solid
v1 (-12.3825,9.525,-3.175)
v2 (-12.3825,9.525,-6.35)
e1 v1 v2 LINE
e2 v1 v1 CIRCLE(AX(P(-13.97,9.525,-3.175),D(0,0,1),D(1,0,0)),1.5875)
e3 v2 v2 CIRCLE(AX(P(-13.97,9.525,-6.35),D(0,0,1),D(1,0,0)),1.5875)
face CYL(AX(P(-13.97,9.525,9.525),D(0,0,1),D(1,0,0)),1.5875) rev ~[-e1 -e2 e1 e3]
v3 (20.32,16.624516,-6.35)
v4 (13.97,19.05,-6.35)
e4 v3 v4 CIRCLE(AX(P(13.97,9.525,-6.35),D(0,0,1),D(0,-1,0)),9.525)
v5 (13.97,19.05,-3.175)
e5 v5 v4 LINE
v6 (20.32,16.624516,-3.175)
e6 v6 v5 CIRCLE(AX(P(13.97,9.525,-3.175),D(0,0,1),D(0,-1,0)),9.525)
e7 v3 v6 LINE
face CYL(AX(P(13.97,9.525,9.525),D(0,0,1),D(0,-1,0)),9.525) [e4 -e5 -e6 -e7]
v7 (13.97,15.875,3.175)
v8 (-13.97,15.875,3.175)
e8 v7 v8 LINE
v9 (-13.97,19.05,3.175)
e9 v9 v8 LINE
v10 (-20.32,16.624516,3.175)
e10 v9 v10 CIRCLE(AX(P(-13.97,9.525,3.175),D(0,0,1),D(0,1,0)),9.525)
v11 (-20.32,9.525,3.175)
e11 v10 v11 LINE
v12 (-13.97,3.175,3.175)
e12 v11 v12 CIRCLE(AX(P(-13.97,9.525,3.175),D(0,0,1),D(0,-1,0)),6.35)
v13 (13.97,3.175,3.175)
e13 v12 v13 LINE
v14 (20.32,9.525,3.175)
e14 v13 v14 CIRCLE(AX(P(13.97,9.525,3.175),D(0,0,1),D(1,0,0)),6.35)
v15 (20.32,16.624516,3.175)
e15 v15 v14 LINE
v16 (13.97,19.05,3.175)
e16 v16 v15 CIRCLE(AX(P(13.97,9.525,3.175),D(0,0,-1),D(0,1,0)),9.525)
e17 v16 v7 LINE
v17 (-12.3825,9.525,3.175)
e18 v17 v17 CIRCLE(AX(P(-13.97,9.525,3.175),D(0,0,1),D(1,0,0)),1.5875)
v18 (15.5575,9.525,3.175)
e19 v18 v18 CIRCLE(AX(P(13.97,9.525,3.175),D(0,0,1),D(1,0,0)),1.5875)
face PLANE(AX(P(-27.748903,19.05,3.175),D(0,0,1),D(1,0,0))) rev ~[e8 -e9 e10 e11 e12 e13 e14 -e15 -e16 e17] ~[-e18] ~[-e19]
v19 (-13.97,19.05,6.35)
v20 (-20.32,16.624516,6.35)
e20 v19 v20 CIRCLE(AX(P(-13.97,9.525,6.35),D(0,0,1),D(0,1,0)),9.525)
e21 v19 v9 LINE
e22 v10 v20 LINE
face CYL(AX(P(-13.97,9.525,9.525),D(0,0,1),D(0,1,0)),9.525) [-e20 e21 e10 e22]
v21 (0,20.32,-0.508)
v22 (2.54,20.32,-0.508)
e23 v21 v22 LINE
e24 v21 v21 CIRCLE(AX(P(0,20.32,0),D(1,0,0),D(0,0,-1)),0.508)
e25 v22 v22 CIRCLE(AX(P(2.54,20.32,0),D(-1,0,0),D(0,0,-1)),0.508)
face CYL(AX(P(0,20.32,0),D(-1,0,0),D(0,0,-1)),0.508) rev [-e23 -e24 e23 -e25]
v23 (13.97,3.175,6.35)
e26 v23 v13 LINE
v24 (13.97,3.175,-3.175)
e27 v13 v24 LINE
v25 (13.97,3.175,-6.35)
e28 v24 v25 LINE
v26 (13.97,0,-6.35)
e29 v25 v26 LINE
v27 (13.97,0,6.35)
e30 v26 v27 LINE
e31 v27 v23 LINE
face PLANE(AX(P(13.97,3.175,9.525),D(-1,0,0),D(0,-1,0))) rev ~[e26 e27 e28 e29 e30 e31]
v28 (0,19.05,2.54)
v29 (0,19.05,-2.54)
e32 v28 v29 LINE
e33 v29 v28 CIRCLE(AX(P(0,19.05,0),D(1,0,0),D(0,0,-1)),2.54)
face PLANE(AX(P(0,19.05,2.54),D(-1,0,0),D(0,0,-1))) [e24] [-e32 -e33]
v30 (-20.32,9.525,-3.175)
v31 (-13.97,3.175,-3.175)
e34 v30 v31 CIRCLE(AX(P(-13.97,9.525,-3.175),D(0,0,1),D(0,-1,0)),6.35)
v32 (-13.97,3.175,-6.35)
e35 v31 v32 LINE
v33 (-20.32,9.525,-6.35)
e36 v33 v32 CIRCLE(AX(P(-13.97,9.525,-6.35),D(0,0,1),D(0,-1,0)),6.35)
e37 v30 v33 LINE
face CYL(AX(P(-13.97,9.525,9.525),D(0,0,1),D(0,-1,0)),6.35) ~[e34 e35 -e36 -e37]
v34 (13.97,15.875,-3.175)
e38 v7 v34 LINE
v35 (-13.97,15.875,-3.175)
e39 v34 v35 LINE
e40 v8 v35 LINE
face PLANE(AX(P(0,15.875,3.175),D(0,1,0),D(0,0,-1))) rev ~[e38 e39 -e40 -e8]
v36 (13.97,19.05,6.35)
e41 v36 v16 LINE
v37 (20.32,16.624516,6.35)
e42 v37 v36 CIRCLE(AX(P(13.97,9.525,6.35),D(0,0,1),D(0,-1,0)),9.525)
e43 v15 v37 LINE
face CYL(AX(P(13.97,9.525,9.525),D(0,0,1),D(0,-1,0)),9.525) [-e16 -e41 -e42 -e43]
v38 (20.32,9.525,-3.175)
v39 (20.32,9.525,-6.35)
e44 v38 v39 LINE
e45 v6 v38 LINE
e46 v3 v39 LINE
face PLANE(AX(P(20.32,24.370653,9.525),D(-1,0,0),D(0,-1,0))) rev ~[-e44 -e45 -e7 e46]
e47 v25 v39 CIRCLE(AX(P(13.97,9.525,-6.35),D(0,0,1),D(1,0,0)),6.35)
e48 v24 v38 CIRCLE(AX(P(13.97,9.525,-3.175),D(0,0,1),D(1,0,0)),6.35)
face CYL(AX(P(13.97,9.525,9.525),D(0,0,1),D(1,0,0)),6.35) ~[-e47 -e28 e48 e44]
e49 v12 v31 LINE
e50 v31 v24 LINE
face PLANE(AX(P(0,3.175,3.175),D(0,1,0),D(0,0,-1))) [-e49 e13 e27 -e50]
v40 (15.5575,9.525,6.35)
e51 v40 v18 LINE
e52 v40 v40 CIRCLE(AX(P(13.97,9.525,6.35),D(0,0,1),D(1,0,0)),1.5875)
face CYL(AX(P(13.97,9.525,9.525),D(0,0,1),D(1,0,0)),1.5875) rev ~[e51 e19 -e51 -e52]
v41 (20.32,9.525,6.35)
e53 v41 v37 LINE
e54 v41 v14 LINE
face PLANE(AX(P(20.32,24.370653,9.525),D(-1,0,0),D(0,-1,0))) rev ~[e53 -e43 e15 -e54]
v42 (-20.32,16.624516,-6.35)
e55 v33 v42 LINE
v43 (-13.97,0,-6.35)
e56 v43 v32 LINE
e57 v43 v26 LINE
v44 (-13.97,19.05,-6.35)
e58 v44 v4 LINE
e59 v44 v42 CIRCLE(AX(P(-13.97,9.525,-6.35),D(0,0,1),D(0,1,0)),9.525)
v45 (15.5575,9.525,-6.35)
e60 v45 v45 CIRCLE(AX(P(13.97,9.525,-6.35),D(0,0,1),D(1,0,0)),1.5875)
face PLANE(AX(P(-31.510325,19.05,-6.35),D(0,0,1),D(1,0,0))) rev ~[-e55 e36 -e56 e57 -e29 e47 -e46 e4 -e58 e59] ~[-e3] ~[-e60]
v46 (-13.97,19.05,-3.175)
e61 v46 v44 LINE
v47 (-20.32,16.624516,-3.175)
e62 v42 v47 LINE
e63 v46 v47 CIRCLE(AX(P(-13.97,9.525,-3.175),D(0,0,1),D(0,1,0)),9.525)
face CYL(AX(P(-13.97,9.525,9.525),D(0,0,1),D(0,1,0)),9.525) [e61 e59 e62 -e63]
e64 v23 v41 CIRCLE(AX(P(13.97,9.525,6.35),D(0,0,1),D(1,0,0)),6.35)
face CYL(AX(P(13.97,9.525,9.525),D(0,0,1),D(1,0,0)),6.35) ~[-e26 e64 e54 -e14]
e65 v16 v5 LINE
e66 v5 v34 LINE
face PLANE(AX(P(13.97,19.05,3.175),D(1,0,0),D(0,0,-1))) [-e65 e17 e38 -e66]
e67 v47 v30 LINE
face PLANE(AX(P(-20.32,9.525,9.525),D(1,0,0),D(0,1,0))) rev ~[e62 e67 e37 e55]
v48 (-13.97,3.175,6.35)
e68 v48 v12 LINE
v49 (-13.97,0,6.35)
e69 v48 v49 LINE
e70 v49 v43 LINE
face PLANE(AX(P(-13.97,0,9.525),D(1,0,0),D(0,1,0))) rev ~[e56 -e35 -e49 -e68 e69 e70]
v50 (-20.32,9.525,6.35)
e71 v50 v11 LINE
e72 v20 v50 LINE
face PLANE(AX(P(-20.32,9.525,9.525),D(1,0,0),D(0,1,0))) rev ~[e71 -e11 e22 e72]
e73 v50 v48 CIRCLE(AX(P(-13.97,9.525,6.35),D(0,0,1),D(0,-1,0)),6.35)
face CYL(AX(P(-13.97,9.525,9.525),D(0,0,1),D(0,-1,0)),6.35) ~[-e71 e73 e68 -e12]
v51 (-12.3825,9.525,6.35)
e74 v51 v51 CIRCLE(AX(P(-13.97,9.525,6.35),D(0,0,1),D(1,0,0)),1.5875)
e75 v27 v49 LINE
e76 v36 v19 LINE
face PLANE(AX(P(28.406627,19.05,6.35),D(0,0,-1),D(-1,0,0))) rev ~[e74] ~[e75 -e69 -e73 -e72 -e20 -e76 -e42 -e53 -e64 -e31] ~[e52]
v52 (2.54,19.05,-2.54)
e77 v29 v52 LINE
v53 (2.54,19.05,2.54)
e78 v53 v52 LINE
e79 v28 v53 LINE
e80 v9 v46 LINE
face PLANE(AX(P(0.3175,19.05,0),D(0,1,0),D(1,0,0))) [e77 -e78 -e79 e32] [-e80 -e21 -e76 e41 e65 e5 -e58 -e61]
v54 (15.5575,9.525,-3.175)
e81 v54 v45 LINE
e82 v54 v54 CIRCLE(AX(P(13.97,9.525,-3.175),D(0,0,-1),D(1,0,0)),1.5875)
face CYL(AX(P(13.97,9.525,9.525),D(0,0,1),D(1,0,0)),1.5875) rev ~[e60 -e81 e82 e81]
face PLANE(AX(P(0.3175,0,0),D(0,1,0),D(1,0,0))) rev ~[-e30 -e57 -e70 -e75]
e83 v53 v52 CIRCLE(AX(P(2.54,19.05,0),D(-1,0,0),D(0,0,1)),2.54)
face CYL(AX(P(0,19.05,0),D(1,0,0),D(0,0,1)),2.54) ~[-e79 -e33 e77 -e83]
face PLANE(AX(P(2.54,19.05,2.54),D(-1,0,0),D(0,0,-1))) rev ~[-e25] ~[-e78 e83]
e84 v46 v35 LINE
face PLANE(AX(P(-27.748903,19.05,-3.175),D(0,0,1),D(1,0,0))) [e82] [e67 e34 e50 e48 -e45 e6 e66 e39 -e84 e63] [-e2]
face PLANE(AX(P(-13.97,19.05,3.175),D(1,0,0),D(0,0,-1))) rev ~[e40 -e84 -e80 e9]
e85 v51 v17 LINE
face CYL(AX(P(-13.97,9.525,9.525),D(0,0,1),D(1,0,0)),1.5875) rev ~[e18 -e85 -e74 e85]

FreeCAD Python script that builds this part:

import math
import FreeCAD as App
import Part
import Sketcher

V = App.Vector
Q = App.Units.Quantity

doc = App.newDocument("Part")
body = doc.addObject("PartDesign::Body", "Body")

# Sketch on XZ plane
sketch1 = body.newObject("Sketcher::SketchObject", "Sketch")
sketch1.AttachmentSupport = (doc.getObject("XZ_Plane"), [""])
sketch1.MapMode = "FlatFace"
sketch1.addGeometry([
    Part.LineSegment(V(-23, -10, 0), V(-23, 10, 0)),
    Part.LineSegment(V(-23, 10, 0), V(24, 10, 0)),
    Part.LineSegment(V(24, 10, 0), V(24, -10, 0)),
    Part.LineSegment(V(24, -10, 0), V(-23, -10, 0)),
], False)
sketch1.addConstraint([
    Sketcher.Constraint("Coincident", 0, 2, 1, 1),
    Sketcher.Constraint("Coincident", 1, 2, 2, 1),
    Sketcher.Constraint("Coincident", 2, 2, 3, 1),
    Sketcher.Constraint("Coincident", 3, 2, 0, 1),
    Sketcher.Constraint("Vertical", 0),
    Sketcher.Constraint("Horizontal", 1),
    Sketcher.Constraint("Vertical", 2),
    Sketcher.Constraint("Horizontal", 3),
    Sketcher.Constraint("DistanceY", 0, 1, 0, 2, Q("0.75 in")),
    Sketcher.Constraint("DistanceX", 1, 1, 1, 2, Q("1.875 in")),
    Sketcher.Constraint("DistanceX", -1, 1, 1, 2, Q("0.95 in")),
    Sketcher.Constraint("DistanceY", -1, 1, 0, 2, Q("0.375 in")),
])
pad1 = body.newObject("PartDesign::Pad", "Pad")
pad1.Profile = sketch1
pad1.Length = Q("0.75 in")
pad1.Reversed = True

# Sketch on XY plane
sketch2 = body.newObject("Sketcher::SketchObject", "Sketch001")
sketch2.AttachmentSupport = (doc.getObject("XY_Plane"), [""])
sketch2.MapMode = "FlatFace"
sketch2.AttachmentOffset = App.Placement(V(0, 0, 0.375 * 25.4), App.Rotation())
sketch2.addGeometry([
    Part.Circle(V(-14, 9.5, 0), V(0, 0, 1), 1.6),  # 0
    Part.Circle(V(14, 9.5, 0), V(0, 0, 1), 1.6),  # 1
    Part.ArcOfCircle(Part.Circle(V(-14, 9.5, 0), V(0, 0, 1), 9.5), math.radians(90), math.radians(270)),  # 2
    Part.ArcOfCircle(Part.Circle(V(-21.8, 9.5, 0), V(0, 0, 1), 12.4), math.radians(50), math.radians(310)),  # 3
    Part.ArcOfCircle(Part.Circle(V(21.8, 9.5, 0), V(0, 0, 1), 12.4), math.radians(-130), math.radians(130)),  # 4
    Part.ArcOfCircle(Part.Circle(V(14, 9.5, 0), V(0, 0, 1), 9.5), math.radians(-90), math.radians(90)),  # 5
], False)
sketch2.addConstraint([
    Sketcher.Constraint("Coincident", 2, 1, 3, 1),
    Sketcher.Constraint("Coincident", 3, 2, 2, 2),
    Sketcher.Constraint("Coincident", 4, 1, 5, 1),
    Sketcher.Constraint("Coincident", 5, 2, 4, 2),
    Sketcher.Constraint("Coincident", 2, 3, 0, 3),
    Sketcher.Constraint("Coincident", 5, 3, 1, 3),
    Sketcher.Constraint("Equal", 0, 1),
    Sketcher.Constraint("Equal", 3, 4),
    Sketcher.Constraint("Equal", 2, 5),
    Sketcher.Constraint("Symmetric", 3, 2, 4, 1, -1, 1),
    Sketcher.Constraint("Symmetric", 0, 3, 1, 3, -2),
    Sketcher.Constraint("Horizontal", 2, 3, 3, 3),
    Sketcher.Constraint("Horizontal", 3, 3, 4, 3),
    Sketcher.Constraint("Vertical", 0, 3, 2, 1),
    Sketcher.Constraint("Diameter", 0, Q("0.125 in")),
    Sketcher.Constraint("Radius", 2, Q("0.375 in")),
    Sketcher.Constraint("DistanceX", 0, 3, 1, 3, Q("1.1 in")),
    Sketcher.Constraint("Radius", 3, Q("12.351426 mm")),
])
pocket1 = body.newObject("PartDesign::Pocket", "Pocket")
pocket1.Profile = sketch2
pocket1.Length = Q("0.75 in")

# Sketch on XZ plane
sketch3 = body.newObject("Sketcher::SketchObject", "Sketch002")
sketch3.AttachmentSupport = (doc.getObject("XZ_Plane"), [""])
sketch3.MapMode = "FlatFace"
sketch3.AttachmentOffset = App.Placement(V(0, 0, -0.75 * 25.4), App.Rotation())
sketch3.addGeometry([
    Part.LineSegment(V(0, -2.5, 0), V(0, 2.5, 0)),
    Part.LineSegment(V(0, 2.5, 0), V(2.5, 2.5, 0)),
    Part.LineSegment(V(2.5, 2.5, 0), V(2.5, -2.5, 0)),
    Part.LineSegment(V(2.5, -2.5, 0), V(0, -2.5, 0)),
], False)
sketch3.addConstraint([
    Sketcher.Constraint("Coincident", 0, 2, 1, 1),
    Sketcher.Constraint("Coincident", 1, 2, 2, 1),
    Sketcher.Constraint("Coincident", 2, 2, 3, 1),
    Sketcher.Constraint("Coincident", 3, 2, 0, 1),
    Sketcher.Constraint("Vertical", 0),
    Sketcher.Constraint("Horizontal", 1),
    Sketcher.Constraint("Vertical", 2),
    Sketcher.Constraint("Horizontal", 3),
    Sketcher.Constraint("Symmetric", 0, 2, 3, 2, -1, 1),
    Sketcher.Constraint("DistanceX", 1, 1, 1, 2, Q("0.1 in")),
    Sketcher.Constraint("DistanceY", 0, 1, 0, 2, Q("0.2 in")),
])
pad2 = body.newObject("PartDesign::Pad", "Pad001")
pad2.Profile = sketch3
pad2.Length = Q("0.1 in")
pad2.Reversed = True

# Sketch on YZ plane
sketch4 = body.newObject("Sketcher::SketchObject", "Sketch003")
sketch4.AttachmentSupport = (doc.getObject("YZ_Plane"), [""])
sketch4.MapMode = "FlatFace"
sketch4.addGeometry([
    Part.Circle(V(20.3, 0, 0), V(0, 0, 1), 0.5),  # 0
    Part.LineSegment(V(15.9, 3.2, 0), V(3.2, 3.2, 0)),  # 1
    Part.LineSegment(V(3.2, 3.2, 0), V(3.2, -3.2, 0)),  # 2
    Part.LineSegment(V(3.2, -3.2, 0), V(15.9, -3.2, 0)),  # 3
    Part.LineSegment(V(15.9, -3.2, 0), V(15.9, 3.2, 0)),  # 4
    Part.ArcOfCircle(Part.Circle(V(19.1, 0, 0), V(0, 0, 1), 2.5), math.radians(-90), math.radians(90)),  # 5
    Part.ArcOfCircle(Part.Circle(V(20.9, 0, 0), V(0, 0, 1), 3.2), math.radians(-127), math.radians(127)),  # 6
], False)
sketch4.addConstraint([
    Sketcher.Constraint("Coincident", 1, 2, 2, 1),
    Sketcher.Constraint("Coincident", 2, 2, 3, 1),
    Sketcher.Constraint("Coincident", 3, 2, 4, 1),
    Sketcher.Constraint("Coincident", 4, 2, 1, 1),
    Sketcher.Constraint("Coincident", 5, 1, 6, 1),
    Sketcher.Constraint("Coincident", 6, 2, 5, 2),
    Sketcher.Constraint("Horizontal", 1),
    Sketcher.Constraint("Vertical", 2),
    Sketcher.Constraint("Horizontal", 3),
    Sketcher.Constraint("Vertical", 4),
    Sketcher.Constraint("Symmetric", 5, 1, 6, 2, -1),
    Sketcher.Constraint("PointOnObject", 0, 3, -1),
    Sketcher.Constraint("Radius", 5, Q("0.1 in")),
    Sketcher.Constraint("Diameter", 0, Q("0.04 in")),
    Sketcher.Constraint("DistanceX", 1, 2, 1, 1, Q("0.5 in")),
    Sketcher.Constraint("DistanceY", 2, 2, 2, 1, Q("0.25 in")),
    Sketcher.Constraint("DistanceX", -1, 1, 0, 3, Q("0.8 in")),
    Sketcher.Constraint("DistanceX", -1, 1, 5, 3, Q("0.75 in")),
    Sketcher.Constraint("DistanceX", -1, 1, 5, 1, Q("0.75 in")),
    Sketcher.Constraint("DistanceX", -1, 1, 1, 2, Q("0.125 in")),
    Sketcher.Constraint("DistanceY", -1, 1, 1, 2, Q("0.125 in")),
    Sketcher.Constraint("Radius", 6, Q("3.166786 mm")),
])
pocket2 = body.newObject("PartDesign::Pocket", "Pocket001")
pocket2.Profile = sketch4
pocket2.Length = Q("3 in")
pocket2.Midplane = True

# Sketch on XZ plane
sketch5 = body.newObject("Sketcher::SketchObject", "Sketch004")
sketch5.AttachmentSupport = (doc.getObject("XZ_Plane"), [""])
sketch5.MapMode = "FlatFace"
sketch5.AttachmentOffset = App.Placement(V(0, 0, -0.75 * 25.4), App.Rotation())
sketch5.addGeometry([
    Part.LineSegment(V(-29.4, 9.5, 0), V(28.4, 9.5, 0)),  # 0
    Part.LineSegment(V(28.4, 9.5, 0), V(28.4, 6.3, 0)),  # 1
    Part.LineSegment(V(28.4, 6.3, 0), V(-29.4, 6.3, 0)),  # 2
    Part.LineSegment(V(-29.4, 6.3, 0), V(-29.4, 9.5, 0)),  # 3
    Part.LineSegment(V(-31.5, -6.3, 0), V(30.7, -6.3, 0)),  # 4
    Part.LineSegment(V(30.7, -6.3, 0), V(30.7, -9.5, 0)),  # 5
    Part.LineSegment(V(30.7, -9.5, 0), V(-31.5, -9.5, 0)),  # 6
    Part.LineSegment(V(-31.5, -9.5, 0), V(-31.5, -6.3, 0)),  # 7
    Part.LineSegment(V(14, -3.2, 0), V(14, 3.2, 0)),  # 8
    Part.LineSegment(V(14, 3.2, 0), V(29.2, 3.2, 0)),  # 9
    Part.LineSegment(V(29.2, 3.2, 0), V(29.2, -3.2, 0)),  # 10
    Part.LineSegment(V(29.2, -3.2, 0), V(14, -3.2, 0)),  # 11
], False)
sketch5.addConstraint([
    Sketcher.Constraint("Coincident", 0, 2, 1, 1),
    Sketcher.Constraint("Coincident", 1, 2, 2, 1),
    Sketcher.Constraint("Coincident", 2, 2, 3, 1),
    Sketcher.Constraint("Coincident", 3, 2, 0, 1),
    Sketcher.Constraint("Coincident", 4, 2, 5, 1),
    Sketcher.Constraint("Coincident", 5, 2, 6, 1),
    Sketcher.Constraint("Coincident", 6, 2, 7, 1),
    Sketcher.Constraint("Coincident", 7, 2, 4, 1),
    Sketcher.Constraint("Coincident", 8, 2, 9, 1),
    Sketcher.Constraint("Coincident", 9, 2, 10, 1),
    Sketcher.Constraint("Coincident", 10, 2, 11, 1),
    Sketcher.Constraint("Coincident", 11, 2, 8, 1),
    Sketcher.Constraint("Horizontal", 0),
    Sketcher.Constraint("Vertical", 1),
    Sketcher.Constraint("Horizontal", 2),
    Sketcher.Constraint("Vertical", 3),
    Sketcher.Constraint("Horizontal", 4),
    Sketcher.Constraint("Vertical", 5),
    Sketcher.Constraint("Horizontal", 6),
    Sketcher.Constraint("Vertical", 7),
    Sketcher.Constraint("Vertical", 8),
    Sketcher.Constraint("Horizontal", 9),
    Sketcher.Constraint("Vertical", 10),
    Sketcher.Constraint("Horizontal", 11),
    Sketcher.Constraint("Equal", 3, 5),
    Sketcher.Constraint("DistanceY", 8, 1, 8, 2, Q("0.25 in")),
    Sketcher.Constraint("DistanceY", 4, 2, 1, 2, Q("0.5 in")),
    Sketcher.Constraint("DistanceY", 5, 2, 8, 2, Q("0.5 in")),
    Sketcher.Constraint("DistanceY", 10, 2, 0, 2, Q("0.5 in")),
    Sketcher.Constraint("DistanceY", -1, 1, 1, 2, Q("0.25 in")),
    Sketcher.Constraint("DistanceX", -1, 1, 8, 2, Q("0.55 in")),
    Sketcher.Constraint("DistanceX", 0, 1, 0, 2, Q("57.767781 mm")),
    Sketcher.Constraint("DistanceX", 4, 1, 4, 2, Q("62.185342 mm")),
    Sketcher.Constraint("DistanceX", 9, 1, 9, 2, Q("15.197967 mm")),
    Sketcher.Constraint("DistanceX", 1, 2, 4, 2, Q("2.268391 mm")),
    Sketcher.Constraint("DistanceX", 1, 2, 9, 2, Q("0.761341 mm")),
])
pocket3 = body.newObject("PartDesign::Pocket", "Pocket002")
pocket3.Profile = sketch5
pocket3.Length = Q("1.7 in")
pocket3.Reversed = True

# Sketch on XY plane
sketch6 = body.newObject("Sketcher::SketchObject", "Sketch005")
sketch6.AttachmentSupport = (doc.getObject("XY_Plane"), [""])
sketch6.MapMode = "FlatFace"
sketch6.AttachmentOffset = App.Placement(V(0, 0, 0.375 * 25.4), App.Rotation())
sketch6.addGeometry([
    Part.LineSegment(V(14, 0, 0), V(32, 0, 0)),  # 0
    Part.LineSegment(V(32, 0, 0), V(32, 3.2, 0)),  # 1
    Part.LineSegment(V(32, 3.2, 0), V(27.2, 13.8, 0)),  # 2
    Part.LineSegment(V(27.2, 13.8, 0), V(20.3, 24.4, 0)),  # 3
    Part.LineSegment(V(20.3, 24.4, 0), V(20.3, 9.5, 0)),  # 4
    Part.ArcOfCircle(Part.Circle(V(14, 9.5, 0), V(0, 0, 1), 6.3), math.radians(-90), math.radians(0)),  # 5
    Part.LineSegment(V(14, 3.2, 0), V(14, 0, 0)),  # 6
    Part.LineSegment(V(-14, 0, 0), V(-14, 3.2, 0)),  # 7
    Part.ArcOfCircle(Part.Circle(V(-14, 9.5, 0), V(0, 0, 1), 6.3), math.radians(180), math.radians(270)),  # 8
    Part.LineSegment(V(-20.3, 9.5, 0), V(-20.3, 20.9, 0)),  # 9
    Part.LineSegment(V(-20.3, 20.9, 0), V(-28.9, 11.8, 0)),  # 10
    Part.LineSegment(V(-28.9, 11.8, 0), V(-28.9, 0, 0)),  # 11
    Part.LineSegment(V(-28.9, 0, 0), V(-14, 0, 0)),  # 12
], False)
sketch6.addConstraint([
    Sketcher.Constraint("Coincident", 0, 2, 1, 1),
    Sketcher.Constraint("Coincident", 1, 2, 2, 1),
    Sketcher.Constraint("Coincident", 2, 2, 3, 1),
    Sketcher.Constraint("Coincident", 3, 2, 4, 1),
    Sketcher.Constraint("Tangent", 4, 2, 5, 2),
    Sketcher.Constraint("Coincident", 5, 1, 6, 1),
    Sketcher.Constraint("Coincident", 6, 2, 0, 1),
    Sketcher.Constraint("Coincident", 7, 2, 8, 2),
    Sketcher.Constraint("Tangent", 8, 1, 9, 1),
    Sketcher.Constraint("Coincident", 9, 2, 10, 1),
    Sketcher.Constraint("Coincident", 10, 2, 11, 1),
    Sketcher.Constraint("Coincident", 11, 2, 12, 1),
    Sketcher.Constraint("Coincident", 12, 2, 7, 1),
    Sketcher.Constraint("Horizontal", 0),
    Sketcher.Constraint("Vertical", 1),
    Sketcher.Constraint("Vertical", 4),
    Sketcher.Constraint("Vertical", 6),
    Sketcher.Constraint("Vertical", 7),
    Sketcher.Constraint("Vertical", 9),
    Sketcher.Constraint("Vertical", 11),
    Sketcher.Constraint("Horizontal", 12),
    Sketcher.Constraint("Equal", 5, 8),
    Sketcher.Constraint("Symmetric", 6, 2, 12, 2, -1, 1),
    Sketcher.Constraint("Symmetric", 5, 3, 8, 3, -2),
    Sketcher.Constraint("PointOnObject", 0, 2, -1),
    Sketcher.Constraint("Horizontal", 1, 2, 5, 1),
    Sketcher.Constraint("Vertical", 8, 3, 7, 2),
    Sketcher.Constraint("Radius", 5, Q("0.25 in")),
    Sketcher.Constraint("DistanceX", -1, 1, 3, 2, Q("0.8 in")),
    Sketcher.Constraint("DistanceY", 1, 1, 1, 2, Q("0.125 in")),
    Sketcher.Constraint("DistanceY", 9, 1, 9, 2, Q("11.417772 mm")),
    Sketcher.Constraint("DistanceX", 0, 1, 0, 2, Q("18.010086 mm")),
    Sketcher.Constraint("DistanceX", 12, 1, 12, 2, Q("14.951644 mm")),
    Sketcher.Constraint("DistanceY", 4, 2, 4, 1, Q("14.845653 mm")),
    Sketcher.Constraint("DistanceY", 11, 2, 11, 1, Q("11.767685 mm")),
    Sketcher.Constraint("DistanceY", -1, 1, 2, 2, Q("13.808491 mm")),
    Sketcher.Constraint("DistanceX", 2, 2, 1, 2, Q("4.796491 mm")),
])
pocket4 = body.newObject("PartDesign::Pocket", "Pocket003")
pocket4.Profile = sketch6
pocket4.Length = Q("0.75 in")

# Sketch on XZ plane
sketch7 = body.newObject("Sketcher::SketchObject", "Sketch006")
sketch7.AttachmentSupport = (doc.getObject("XZ_Plane"), [""])
sketch7.MapMode = "FlatFace"
sketch7.AttachmentOffset = App.Placement(V(0, 0, -0.75 * 25.4), App.Rotation())
sketch7.addGeometry([
    Part.LineSegment(V(-28, -3, 0), V(-28, 3, 0)),
    Part.LineSegment(V(-28, 3, 0), V(-14, 3, 0)),
    Part.LineSegment(V(-14, 3, 0), V(-14, -3, 0)),
    Part.LineSegment(V(-14, -3, 0), V(-28, -3, 0)),
], False)
sketch7.addConstraint([
    Sketcher.Constraint("Coincident", 0, 2, 1, 1),
    Sketcher.Constraint("Coincident", 1, 2, 2, 1),
    Sketcher.Constraint("Coincident", 2, 2, 3, 1),
    Sketcher.Constraint("Coincident", 3, 2, 0, 1),
    Sketcher.Constraint("Vertical", 0),
    Sketcher.Constraint("Horizontal", 1),
    Sketcher.Constraint("Vertical", 2),
    Sketcher.Constraint("Horizontal", 3),
    Sketcher.Constraint("DistanceY", 0, 1, 0, 2, Q("0.25 in")),
    Sketcher.Constraint("DistanceX", 1, 2, -1, 1, Q("0.55 in")),
    Sketcher.Constraint("DistanceY", -1, 1, 0, 2, Q("0.125 in")),
    Sketcher.Constraint("DistanceX", 1, 1, 1, 2, Q("13.778903 mm")),
])
pocket5 = body.newObject("PartDesign::Pocket", "Pocket004")
pocket5.Profile = sketch7
pocket5.Length = Q("0.15 in")
pocket5.Reversed = True

doc.recompute()
